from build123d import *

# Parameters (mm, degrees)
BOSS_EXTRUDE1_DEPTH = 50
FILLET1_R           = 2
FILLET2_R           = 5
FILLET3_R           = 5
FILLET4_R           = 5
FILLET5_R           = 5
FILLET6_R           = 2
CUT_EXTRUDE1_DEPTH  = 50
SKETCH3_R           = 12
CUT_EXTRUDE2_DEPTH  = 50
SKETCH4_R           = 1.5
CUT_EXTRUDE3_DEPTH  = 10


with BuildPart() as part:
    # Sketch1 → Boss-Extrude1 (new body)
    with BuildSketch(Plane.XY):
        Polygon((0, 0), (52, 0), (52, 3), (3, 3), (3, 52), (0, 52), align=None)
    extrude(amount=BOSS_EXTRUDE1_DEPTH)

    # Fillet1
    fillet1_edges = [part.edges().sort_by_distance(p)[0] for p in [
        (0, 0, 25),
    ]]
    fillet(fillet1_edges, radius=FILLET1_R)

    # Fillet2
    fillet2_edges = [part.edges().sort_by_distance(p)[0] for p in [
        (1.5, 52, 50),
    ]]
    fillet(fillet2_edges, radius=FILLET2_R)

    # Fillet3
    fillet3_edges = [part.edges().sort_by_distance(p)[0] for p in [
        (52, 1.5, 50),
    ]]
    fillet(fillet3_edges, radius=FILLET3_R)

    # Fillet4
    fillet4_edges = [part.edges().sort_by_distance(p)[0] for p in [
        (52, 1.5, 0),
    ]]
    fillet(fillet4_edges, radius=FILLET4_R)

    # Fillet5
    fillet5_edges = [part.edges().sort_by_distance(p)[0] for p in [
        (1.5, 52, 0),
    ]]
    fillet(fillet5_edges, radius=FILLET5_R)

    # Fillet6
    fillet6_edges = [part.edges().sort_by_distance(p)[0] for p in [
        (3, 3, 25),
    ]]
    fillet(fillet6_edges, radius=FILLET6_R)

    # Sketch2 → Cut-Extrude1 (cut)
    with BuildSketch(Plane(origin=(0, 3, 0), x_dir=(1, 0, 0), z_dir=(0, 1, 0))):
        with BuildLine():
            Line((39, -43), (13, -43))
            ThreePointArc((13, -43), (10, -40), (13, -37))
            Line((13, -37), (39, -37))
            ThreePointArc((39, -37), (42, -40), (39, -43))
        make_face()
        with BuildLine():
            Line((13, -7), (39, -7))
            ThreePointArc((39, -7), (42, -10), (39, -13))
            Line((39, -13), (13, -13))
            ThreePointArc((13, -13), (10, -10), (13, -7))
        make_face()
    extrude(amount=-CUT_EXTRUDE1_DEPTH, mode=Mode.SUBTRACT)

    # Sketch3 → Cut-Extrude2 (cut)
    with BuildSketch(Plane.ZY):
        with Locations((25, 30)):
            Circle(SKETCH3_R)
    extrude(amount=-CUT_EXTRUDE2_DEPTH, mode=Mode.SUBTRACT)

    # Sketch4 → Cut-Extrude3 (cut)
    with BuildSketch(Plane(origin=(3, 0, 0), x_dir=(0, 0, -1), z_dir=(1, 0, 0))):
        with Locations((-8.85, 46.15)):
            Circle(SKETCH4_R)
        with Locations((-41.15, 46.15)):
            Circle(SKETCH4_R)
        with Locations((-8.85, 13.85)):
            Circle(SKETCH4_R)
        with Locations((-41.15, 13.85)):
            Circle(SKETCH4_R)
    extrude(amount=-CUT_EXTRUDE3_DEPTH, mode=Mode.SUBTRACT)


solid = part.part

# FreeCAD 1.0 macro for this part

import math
import FreeCAD as App
import Part
import Sketcher

V = App.Vector
Q = App.Units.Quantity


def edges_at(feature, points):
    """Names of the edges that pass closest to the given points."""
    edges = feature.Shape.Edges
    near = lambda p: min(range(len(edges)), key=lambda i: edges[i].distToShape(Part.Vertex(*p))[0])
    return sorted({f"Edge{near(p) + 1}" for p in points})

doc = App.newDocument("Part")
params = doc.addObject("Spreadsheet::Sheet", "Params")
for row, (alias, value) in enumerate([
    ("sketch1_width", "52 mm"),
    ("sketch1_width2", "49 mm"),
    ("pad1_length", "50 mm"),
    ("fillet_radius", "2 mm"),
    ("fillet2_radius", "5 mm"),
    ("fillet3_radius", "5 mm"),
    ("fillet4_radius", "5 mm"),
    ("fillet5_radius", "5 mm"),
    ("fillet6_radius", "2 mm"),
    ("sketch2_radius", "3 mm"),
    ("sketch2_width", "26 mm"),
    ("pocket1_length", "50 mm"),
    ("sketch3_diameter", "24 mm"),
    ("pocket2_length", "50 mm"),
    ("sketch4_diameter", "3 mm"),
    ("pocket3_length", "10 mm"),
], start=1):
    params.set(f"A{row}", alias)
    params.set(f"B{row}", "=" + value)
    params.setAlias(f"B{row}", alias)

body = doc.addObject("PartDesign::Body", "Body")

sketch1 = doc.addObject("Sketcher::SketchObject", "Sketch")
body.addObject(sketch1)
sketch1.AttachmentSupport = (doc.XY_Plane, [""])
sketch1.MapMode = "FlatFace"
sketch1.addGeometry([
    Part.LineSegment(V(0, 0, 0), V(52, 0, 0)),
    Part.LineSegment(V(52, 0, 0), V(52, 3, 0)),
    Part.LineSegment(V(52, 3, 0), V(3, 3, 0)),
    Part.LineSegment(V(3, 3, 0), V(3, 52, 0)),
    Part.LineSegment(V(3, 52, 0), V(0, 52, 0)),
    Part.LineSegment(V(0, 52, 0), V(0, 0, 0)),
], False)
sketch1.addConstraint([
    Sketcher.Constraint("Coincident", 0, 2, 1, 1),
    Sketcher.Constraint("Coincident", 1, 2, 2, 1),
    Sketcher.Constraint("Coincident", 2, 2, 3, 1),
    Sketcher.Constraint("Coincident", 3, 2, 4, 1),
    Sketcher.Constraint("Coincident", 4, 2, 5, 1),
    Sketcher.Constraint("Coincident", 5, 2, 0, 1),
    Sketcher.Constraint("Horizontal", 0),
    Sketcher.Constraint("Vertical", 1),
    Sketcher.Constraint("Horizontal", 2),
    Sketcher.Constraint("Vertical", 3),
    Sketcher.Constraint("Horizontal", 4),
    Sketcher.Constraint("Vertical", 5),
    Sketcher.Constraint("Coincident", 5, 2, -1, 1),
    Sketcher.Constraint("Equal", 4, 1),
    Sketcher.Constraint("Equal", 2, 3),
    Sketcher.Constraint("DistanceX", 0, 1, 0, 2, Q("52 mm")),
    Sketcher.Constraint("DistanceX", 2, 2, 2, 1, Q("49 mm")),
])
sketch1.setExpression("Constraints[15]", "Params.sketch1_width")
sketch1.setExpression("Constraints[16]", "Params.sketch1_width2")
pad1 = doc.addObject("PartDesign::Pad", "Pad")
body.addObject(pad1)
pad1.Profile = sketch1
pad1.setExpression("Length", "Params.pad1_length")
doc.recompute()

fillet = doc.addObject("PartDesign::Fillet", "Fillet")
body.addObject(fillet)
fillet.Base = (pad1, edges_at(pad1, [(0, 0, 25)]))
fillet.setExpression("Radius", "Params.fillet_radius")
doc.recompute()

fillet2 = doc.addObject("PartDesign::Fillet", "Fillet001")
body.addObject(fillet2)
fillet2.Base = (fillet, edges_at(fillet, [(1.5, 52, 50)]))
fillet2.setExpression("Radius", "Params.fillet2_radius")
doc.recompute()

fillet3 = doc.addObject("PartDesign::Fillet", "Fillet002")
body.addObject(fillet3)
fillet3.Base = (fillet2, edges_at(fillet2, [(52, 1.5, 50)]))
fillet3.setExpression("Radius", "Params.fillet3_radius")
doc.recompute()

fillet4 = doc.addObject("PartDesign::Fillet", "Fillet003")
body.addObject(fillet4)
fillet4.Base = (fillet3, edges_at(fillet3, [(52, 1.5, 0)]))
fillet4.setExpression("Radius", "Params.fillet4_radius")
doc.recompute()

fillet5 = doc.addObject("PartDesign::Fillet", "Fillet004")
body.addObject(fillet5)
fillet5.Base = (fillet4, edges_at(fillet4, [(1.5, 52, 0)]))
fillet5.setExpression("Radius", "Params.fillet5_radius")
doc.recompute()

fillet6 = doc.addObject("PartDesign::Fillet", "Fillet005")
body.addObject(fillet6)
fillet6.Base = (fillet5, edges_at(fillet5, [(3, 3, 25)]))
fillet6.setExpression("Radius", "Params.fillet6_radius")

sketch2 = doc.addObject("Sketcher::SketchObject", "Sketch001")
body.addObject(sketch2)
sketch2.AttachmentSupport = (doc.XZ_Plane, [""])
sketch2.MapMode = "FlatFace"
sketch2.AttachmentOffset = App.Placement(V(0, 0, -3), App.Rotation())
sketch2.addGeometry([
    Part.LineSegment(V(13, 43, 0), V(39, 43, 0)),
    Part.ArcOfCircle(Part.Circle(V(39, 40, 0), V(0, 0, 1), 3), math.radians(-90), math.radians(90)),
    Part.LineSegment(V(39, 37, 0), V(13, 37, 0)),
    Part.ArcOfCircle(Part.Circle(V(13, 40, 0), V(0, 0, 1), 3), math.radians(90), math.radians(270)),
    Part.LineSegment(V(39, 7, 0), V(13, 7, 0)),
    Part.ArcOfCircle(Part.Circle(V(13, 10, 0), V(0, 0, 1), 3), math.radians(90), math.radians(270)),
    Part.LineSegment(V(13, 13, 0), V(39, 13, 0)),
    Part.ArcOfCircle(Part.Circle(V(39, 10, 0), V(0, 0, 1), 3), math.radians(-90), math.radians(90)),
], False)
sketch2.addConstraint([
    Sketcher.Constraint("Tangent", 0, 2, 1, 2),
    Sketcher.Constraint("Tangent", 1, 1, 2, 1),
    Sketcher.Constraint("Tangent", 2, 2, 3, 2),
    Sketcher.Constraint("Tangent", 3, 1, 0, 1),
    Sketcher.Constraint("Tangent", 4, 2, 5, 2),
    Sketcher.Constraint("Tangent", 5, 1, 6, 1),
    Sketcher.Constraint("Tangent", 6, 2, 7, 2),
    Sketcher.Constraint("Tangent", 7, 1, 4, 1),
    Sketcher.Constraint("Horizontal", 0),
    Sketcher.Constraint("Horizontal", 2),
    Sketcher.Constraint("Horizontal", 4),
    Sketcher.Constraint("Horizontal", 6),
    Sketcher.Constraint("Equal", 3, 5),
    Sketcher.Constraint("Vertical", 3, 3, 5, 3),
    Sketcher.Constraint("Vertical", 1, 3, 7, 3),
    Sketcher.Constraint("Radius", 1, Q("3 mm")),
    Sketcher.Constraint("DistanceX", 0, 1, 0, 2, Q("26 mm")),
    Sketcher.Constraint("DistanceX", -1, 1, 1, 3, Q("39 mm")),
    Sketcher.Constraint("DistanceY", -1, 1, 1, 3, Q("40 mm")),
    Sketcher.Constraint("DistanceY", -1, 1, 5, 3, Q("10 mm")),
])
sketch2.setExpression("Constraints[15]", "Params.sketch2_radius")
sketch2.setExpression("Constraints[16]", "Params.sketch2_width")
pocket1 = doc.addObject("PartDesign::Pocket", "Pocket")
body.addObject(pocket1)
pocket1.Profile = sketch2
pocket1.setExpression("Length", "Params.pocket1_length")
pocket1.Reversed = True

sketch3 = doc.addObject("Sketcher::SketchObject", "Sketch002")
body.addObject(sketch3)
sketch3.AttachmentSupport = (doc.YZ_Plane, [""])
sketch3.MapMode = "FlatFace"
sketch3.addGeometry(Part.Circle(V(30, 25, 0), V(0, 0, 1), 12), False)
sketch3.addConstraint([
    Sketcher.Constraint("Diameter", 0, Q("24 mm")),
    Sketcher.Constraint("DistanceX", -1, 1, 0, 3, Q("30 mm")),
    Sketcher.Constraint("DistanceY", -1, 1, 0, 3, Q("25 mm")),
])
sketch3.setExpression("Constraints[0]", "Params.sketch3_diameter")
pocket2 = doc.addObject("PartDesign::Pocket", "Pocket001")
body.addObject(pocket2)
pocket2.Profile = sketch3
pocket2.setExpression("Length", "Params.pocket2_length")
pocket2.Reversed = True

sketch4 = doc.addObject("Sketcher::SketchObject", "Sketch003")
body.addObject(sketch4)
sketch4.AttachmentSupport = (doc.YZ_Plane, [""])
sketch4.MapMode = "FlatFace"
sketch4.AttachmentOffset = App.Placement(V(0, 0, 3), App.Rotation())
sketch4.addGeometry([
    Part.Circle(V(46.1, 8.8, 0), V(0, 0, 1), 1.5),
    Part.Circle(V(46.1, 41.1, 0), V(0, 0, 1), 1.5),
    Part.Circle(V(13.8, 8.8, 0), V(0, 0, 1), 1.5),
    Part.Circle(V(13.8, 41.1, 0), V(0, 0, 1), 1.5),
], False)
sketch4.addConstraint([
    Sketcher.Constraint("Equal", 0, 1),
    Sketcher.Constraint("Equal", 1, 2),
    Sketcher.Constraint("Equal", 2, 3),
    Sketcher.Constraint("Horizontal", 0, 3, 2, 3),
    Sketcher.Constraint("Horizontal", 1, 3, 3, 3),
    Sketcher.Constraint("Vertical", 0, 3, 1, 3),
    Sketcher.Constraint("Vertical", 2, 3, 3, 3),
    Sketcher.Constraint("Diameter", 0, Q("3 mm")),
    Sketcher.Constraint("DistanceY", 0, 3, 1, 3, Q("32.3 mm")),
    Sketcher.Constraint("DistanceX", 2, 3, 0, 3, Q("32.3 mm")),
    Sketcher.Constraint("DistanceX", -1, 1, 0, 3, Q("46.15 mm")),
    Sketcher.Constraint("DistanceY", -1, 1, 0, 3, Q("8.85 mm")),
])
sketch4.setExpression("Constraints[7]", "Params.sketch4_diameter")
pocket3 = doc.addObject("PartDesign::Pocket", "Pocket002")
body.addObject(pocket3)
pocket3.Profile = sketch4
pocket3.setExpression("Length", "Params.pocket3_length")

doc.recompute()
